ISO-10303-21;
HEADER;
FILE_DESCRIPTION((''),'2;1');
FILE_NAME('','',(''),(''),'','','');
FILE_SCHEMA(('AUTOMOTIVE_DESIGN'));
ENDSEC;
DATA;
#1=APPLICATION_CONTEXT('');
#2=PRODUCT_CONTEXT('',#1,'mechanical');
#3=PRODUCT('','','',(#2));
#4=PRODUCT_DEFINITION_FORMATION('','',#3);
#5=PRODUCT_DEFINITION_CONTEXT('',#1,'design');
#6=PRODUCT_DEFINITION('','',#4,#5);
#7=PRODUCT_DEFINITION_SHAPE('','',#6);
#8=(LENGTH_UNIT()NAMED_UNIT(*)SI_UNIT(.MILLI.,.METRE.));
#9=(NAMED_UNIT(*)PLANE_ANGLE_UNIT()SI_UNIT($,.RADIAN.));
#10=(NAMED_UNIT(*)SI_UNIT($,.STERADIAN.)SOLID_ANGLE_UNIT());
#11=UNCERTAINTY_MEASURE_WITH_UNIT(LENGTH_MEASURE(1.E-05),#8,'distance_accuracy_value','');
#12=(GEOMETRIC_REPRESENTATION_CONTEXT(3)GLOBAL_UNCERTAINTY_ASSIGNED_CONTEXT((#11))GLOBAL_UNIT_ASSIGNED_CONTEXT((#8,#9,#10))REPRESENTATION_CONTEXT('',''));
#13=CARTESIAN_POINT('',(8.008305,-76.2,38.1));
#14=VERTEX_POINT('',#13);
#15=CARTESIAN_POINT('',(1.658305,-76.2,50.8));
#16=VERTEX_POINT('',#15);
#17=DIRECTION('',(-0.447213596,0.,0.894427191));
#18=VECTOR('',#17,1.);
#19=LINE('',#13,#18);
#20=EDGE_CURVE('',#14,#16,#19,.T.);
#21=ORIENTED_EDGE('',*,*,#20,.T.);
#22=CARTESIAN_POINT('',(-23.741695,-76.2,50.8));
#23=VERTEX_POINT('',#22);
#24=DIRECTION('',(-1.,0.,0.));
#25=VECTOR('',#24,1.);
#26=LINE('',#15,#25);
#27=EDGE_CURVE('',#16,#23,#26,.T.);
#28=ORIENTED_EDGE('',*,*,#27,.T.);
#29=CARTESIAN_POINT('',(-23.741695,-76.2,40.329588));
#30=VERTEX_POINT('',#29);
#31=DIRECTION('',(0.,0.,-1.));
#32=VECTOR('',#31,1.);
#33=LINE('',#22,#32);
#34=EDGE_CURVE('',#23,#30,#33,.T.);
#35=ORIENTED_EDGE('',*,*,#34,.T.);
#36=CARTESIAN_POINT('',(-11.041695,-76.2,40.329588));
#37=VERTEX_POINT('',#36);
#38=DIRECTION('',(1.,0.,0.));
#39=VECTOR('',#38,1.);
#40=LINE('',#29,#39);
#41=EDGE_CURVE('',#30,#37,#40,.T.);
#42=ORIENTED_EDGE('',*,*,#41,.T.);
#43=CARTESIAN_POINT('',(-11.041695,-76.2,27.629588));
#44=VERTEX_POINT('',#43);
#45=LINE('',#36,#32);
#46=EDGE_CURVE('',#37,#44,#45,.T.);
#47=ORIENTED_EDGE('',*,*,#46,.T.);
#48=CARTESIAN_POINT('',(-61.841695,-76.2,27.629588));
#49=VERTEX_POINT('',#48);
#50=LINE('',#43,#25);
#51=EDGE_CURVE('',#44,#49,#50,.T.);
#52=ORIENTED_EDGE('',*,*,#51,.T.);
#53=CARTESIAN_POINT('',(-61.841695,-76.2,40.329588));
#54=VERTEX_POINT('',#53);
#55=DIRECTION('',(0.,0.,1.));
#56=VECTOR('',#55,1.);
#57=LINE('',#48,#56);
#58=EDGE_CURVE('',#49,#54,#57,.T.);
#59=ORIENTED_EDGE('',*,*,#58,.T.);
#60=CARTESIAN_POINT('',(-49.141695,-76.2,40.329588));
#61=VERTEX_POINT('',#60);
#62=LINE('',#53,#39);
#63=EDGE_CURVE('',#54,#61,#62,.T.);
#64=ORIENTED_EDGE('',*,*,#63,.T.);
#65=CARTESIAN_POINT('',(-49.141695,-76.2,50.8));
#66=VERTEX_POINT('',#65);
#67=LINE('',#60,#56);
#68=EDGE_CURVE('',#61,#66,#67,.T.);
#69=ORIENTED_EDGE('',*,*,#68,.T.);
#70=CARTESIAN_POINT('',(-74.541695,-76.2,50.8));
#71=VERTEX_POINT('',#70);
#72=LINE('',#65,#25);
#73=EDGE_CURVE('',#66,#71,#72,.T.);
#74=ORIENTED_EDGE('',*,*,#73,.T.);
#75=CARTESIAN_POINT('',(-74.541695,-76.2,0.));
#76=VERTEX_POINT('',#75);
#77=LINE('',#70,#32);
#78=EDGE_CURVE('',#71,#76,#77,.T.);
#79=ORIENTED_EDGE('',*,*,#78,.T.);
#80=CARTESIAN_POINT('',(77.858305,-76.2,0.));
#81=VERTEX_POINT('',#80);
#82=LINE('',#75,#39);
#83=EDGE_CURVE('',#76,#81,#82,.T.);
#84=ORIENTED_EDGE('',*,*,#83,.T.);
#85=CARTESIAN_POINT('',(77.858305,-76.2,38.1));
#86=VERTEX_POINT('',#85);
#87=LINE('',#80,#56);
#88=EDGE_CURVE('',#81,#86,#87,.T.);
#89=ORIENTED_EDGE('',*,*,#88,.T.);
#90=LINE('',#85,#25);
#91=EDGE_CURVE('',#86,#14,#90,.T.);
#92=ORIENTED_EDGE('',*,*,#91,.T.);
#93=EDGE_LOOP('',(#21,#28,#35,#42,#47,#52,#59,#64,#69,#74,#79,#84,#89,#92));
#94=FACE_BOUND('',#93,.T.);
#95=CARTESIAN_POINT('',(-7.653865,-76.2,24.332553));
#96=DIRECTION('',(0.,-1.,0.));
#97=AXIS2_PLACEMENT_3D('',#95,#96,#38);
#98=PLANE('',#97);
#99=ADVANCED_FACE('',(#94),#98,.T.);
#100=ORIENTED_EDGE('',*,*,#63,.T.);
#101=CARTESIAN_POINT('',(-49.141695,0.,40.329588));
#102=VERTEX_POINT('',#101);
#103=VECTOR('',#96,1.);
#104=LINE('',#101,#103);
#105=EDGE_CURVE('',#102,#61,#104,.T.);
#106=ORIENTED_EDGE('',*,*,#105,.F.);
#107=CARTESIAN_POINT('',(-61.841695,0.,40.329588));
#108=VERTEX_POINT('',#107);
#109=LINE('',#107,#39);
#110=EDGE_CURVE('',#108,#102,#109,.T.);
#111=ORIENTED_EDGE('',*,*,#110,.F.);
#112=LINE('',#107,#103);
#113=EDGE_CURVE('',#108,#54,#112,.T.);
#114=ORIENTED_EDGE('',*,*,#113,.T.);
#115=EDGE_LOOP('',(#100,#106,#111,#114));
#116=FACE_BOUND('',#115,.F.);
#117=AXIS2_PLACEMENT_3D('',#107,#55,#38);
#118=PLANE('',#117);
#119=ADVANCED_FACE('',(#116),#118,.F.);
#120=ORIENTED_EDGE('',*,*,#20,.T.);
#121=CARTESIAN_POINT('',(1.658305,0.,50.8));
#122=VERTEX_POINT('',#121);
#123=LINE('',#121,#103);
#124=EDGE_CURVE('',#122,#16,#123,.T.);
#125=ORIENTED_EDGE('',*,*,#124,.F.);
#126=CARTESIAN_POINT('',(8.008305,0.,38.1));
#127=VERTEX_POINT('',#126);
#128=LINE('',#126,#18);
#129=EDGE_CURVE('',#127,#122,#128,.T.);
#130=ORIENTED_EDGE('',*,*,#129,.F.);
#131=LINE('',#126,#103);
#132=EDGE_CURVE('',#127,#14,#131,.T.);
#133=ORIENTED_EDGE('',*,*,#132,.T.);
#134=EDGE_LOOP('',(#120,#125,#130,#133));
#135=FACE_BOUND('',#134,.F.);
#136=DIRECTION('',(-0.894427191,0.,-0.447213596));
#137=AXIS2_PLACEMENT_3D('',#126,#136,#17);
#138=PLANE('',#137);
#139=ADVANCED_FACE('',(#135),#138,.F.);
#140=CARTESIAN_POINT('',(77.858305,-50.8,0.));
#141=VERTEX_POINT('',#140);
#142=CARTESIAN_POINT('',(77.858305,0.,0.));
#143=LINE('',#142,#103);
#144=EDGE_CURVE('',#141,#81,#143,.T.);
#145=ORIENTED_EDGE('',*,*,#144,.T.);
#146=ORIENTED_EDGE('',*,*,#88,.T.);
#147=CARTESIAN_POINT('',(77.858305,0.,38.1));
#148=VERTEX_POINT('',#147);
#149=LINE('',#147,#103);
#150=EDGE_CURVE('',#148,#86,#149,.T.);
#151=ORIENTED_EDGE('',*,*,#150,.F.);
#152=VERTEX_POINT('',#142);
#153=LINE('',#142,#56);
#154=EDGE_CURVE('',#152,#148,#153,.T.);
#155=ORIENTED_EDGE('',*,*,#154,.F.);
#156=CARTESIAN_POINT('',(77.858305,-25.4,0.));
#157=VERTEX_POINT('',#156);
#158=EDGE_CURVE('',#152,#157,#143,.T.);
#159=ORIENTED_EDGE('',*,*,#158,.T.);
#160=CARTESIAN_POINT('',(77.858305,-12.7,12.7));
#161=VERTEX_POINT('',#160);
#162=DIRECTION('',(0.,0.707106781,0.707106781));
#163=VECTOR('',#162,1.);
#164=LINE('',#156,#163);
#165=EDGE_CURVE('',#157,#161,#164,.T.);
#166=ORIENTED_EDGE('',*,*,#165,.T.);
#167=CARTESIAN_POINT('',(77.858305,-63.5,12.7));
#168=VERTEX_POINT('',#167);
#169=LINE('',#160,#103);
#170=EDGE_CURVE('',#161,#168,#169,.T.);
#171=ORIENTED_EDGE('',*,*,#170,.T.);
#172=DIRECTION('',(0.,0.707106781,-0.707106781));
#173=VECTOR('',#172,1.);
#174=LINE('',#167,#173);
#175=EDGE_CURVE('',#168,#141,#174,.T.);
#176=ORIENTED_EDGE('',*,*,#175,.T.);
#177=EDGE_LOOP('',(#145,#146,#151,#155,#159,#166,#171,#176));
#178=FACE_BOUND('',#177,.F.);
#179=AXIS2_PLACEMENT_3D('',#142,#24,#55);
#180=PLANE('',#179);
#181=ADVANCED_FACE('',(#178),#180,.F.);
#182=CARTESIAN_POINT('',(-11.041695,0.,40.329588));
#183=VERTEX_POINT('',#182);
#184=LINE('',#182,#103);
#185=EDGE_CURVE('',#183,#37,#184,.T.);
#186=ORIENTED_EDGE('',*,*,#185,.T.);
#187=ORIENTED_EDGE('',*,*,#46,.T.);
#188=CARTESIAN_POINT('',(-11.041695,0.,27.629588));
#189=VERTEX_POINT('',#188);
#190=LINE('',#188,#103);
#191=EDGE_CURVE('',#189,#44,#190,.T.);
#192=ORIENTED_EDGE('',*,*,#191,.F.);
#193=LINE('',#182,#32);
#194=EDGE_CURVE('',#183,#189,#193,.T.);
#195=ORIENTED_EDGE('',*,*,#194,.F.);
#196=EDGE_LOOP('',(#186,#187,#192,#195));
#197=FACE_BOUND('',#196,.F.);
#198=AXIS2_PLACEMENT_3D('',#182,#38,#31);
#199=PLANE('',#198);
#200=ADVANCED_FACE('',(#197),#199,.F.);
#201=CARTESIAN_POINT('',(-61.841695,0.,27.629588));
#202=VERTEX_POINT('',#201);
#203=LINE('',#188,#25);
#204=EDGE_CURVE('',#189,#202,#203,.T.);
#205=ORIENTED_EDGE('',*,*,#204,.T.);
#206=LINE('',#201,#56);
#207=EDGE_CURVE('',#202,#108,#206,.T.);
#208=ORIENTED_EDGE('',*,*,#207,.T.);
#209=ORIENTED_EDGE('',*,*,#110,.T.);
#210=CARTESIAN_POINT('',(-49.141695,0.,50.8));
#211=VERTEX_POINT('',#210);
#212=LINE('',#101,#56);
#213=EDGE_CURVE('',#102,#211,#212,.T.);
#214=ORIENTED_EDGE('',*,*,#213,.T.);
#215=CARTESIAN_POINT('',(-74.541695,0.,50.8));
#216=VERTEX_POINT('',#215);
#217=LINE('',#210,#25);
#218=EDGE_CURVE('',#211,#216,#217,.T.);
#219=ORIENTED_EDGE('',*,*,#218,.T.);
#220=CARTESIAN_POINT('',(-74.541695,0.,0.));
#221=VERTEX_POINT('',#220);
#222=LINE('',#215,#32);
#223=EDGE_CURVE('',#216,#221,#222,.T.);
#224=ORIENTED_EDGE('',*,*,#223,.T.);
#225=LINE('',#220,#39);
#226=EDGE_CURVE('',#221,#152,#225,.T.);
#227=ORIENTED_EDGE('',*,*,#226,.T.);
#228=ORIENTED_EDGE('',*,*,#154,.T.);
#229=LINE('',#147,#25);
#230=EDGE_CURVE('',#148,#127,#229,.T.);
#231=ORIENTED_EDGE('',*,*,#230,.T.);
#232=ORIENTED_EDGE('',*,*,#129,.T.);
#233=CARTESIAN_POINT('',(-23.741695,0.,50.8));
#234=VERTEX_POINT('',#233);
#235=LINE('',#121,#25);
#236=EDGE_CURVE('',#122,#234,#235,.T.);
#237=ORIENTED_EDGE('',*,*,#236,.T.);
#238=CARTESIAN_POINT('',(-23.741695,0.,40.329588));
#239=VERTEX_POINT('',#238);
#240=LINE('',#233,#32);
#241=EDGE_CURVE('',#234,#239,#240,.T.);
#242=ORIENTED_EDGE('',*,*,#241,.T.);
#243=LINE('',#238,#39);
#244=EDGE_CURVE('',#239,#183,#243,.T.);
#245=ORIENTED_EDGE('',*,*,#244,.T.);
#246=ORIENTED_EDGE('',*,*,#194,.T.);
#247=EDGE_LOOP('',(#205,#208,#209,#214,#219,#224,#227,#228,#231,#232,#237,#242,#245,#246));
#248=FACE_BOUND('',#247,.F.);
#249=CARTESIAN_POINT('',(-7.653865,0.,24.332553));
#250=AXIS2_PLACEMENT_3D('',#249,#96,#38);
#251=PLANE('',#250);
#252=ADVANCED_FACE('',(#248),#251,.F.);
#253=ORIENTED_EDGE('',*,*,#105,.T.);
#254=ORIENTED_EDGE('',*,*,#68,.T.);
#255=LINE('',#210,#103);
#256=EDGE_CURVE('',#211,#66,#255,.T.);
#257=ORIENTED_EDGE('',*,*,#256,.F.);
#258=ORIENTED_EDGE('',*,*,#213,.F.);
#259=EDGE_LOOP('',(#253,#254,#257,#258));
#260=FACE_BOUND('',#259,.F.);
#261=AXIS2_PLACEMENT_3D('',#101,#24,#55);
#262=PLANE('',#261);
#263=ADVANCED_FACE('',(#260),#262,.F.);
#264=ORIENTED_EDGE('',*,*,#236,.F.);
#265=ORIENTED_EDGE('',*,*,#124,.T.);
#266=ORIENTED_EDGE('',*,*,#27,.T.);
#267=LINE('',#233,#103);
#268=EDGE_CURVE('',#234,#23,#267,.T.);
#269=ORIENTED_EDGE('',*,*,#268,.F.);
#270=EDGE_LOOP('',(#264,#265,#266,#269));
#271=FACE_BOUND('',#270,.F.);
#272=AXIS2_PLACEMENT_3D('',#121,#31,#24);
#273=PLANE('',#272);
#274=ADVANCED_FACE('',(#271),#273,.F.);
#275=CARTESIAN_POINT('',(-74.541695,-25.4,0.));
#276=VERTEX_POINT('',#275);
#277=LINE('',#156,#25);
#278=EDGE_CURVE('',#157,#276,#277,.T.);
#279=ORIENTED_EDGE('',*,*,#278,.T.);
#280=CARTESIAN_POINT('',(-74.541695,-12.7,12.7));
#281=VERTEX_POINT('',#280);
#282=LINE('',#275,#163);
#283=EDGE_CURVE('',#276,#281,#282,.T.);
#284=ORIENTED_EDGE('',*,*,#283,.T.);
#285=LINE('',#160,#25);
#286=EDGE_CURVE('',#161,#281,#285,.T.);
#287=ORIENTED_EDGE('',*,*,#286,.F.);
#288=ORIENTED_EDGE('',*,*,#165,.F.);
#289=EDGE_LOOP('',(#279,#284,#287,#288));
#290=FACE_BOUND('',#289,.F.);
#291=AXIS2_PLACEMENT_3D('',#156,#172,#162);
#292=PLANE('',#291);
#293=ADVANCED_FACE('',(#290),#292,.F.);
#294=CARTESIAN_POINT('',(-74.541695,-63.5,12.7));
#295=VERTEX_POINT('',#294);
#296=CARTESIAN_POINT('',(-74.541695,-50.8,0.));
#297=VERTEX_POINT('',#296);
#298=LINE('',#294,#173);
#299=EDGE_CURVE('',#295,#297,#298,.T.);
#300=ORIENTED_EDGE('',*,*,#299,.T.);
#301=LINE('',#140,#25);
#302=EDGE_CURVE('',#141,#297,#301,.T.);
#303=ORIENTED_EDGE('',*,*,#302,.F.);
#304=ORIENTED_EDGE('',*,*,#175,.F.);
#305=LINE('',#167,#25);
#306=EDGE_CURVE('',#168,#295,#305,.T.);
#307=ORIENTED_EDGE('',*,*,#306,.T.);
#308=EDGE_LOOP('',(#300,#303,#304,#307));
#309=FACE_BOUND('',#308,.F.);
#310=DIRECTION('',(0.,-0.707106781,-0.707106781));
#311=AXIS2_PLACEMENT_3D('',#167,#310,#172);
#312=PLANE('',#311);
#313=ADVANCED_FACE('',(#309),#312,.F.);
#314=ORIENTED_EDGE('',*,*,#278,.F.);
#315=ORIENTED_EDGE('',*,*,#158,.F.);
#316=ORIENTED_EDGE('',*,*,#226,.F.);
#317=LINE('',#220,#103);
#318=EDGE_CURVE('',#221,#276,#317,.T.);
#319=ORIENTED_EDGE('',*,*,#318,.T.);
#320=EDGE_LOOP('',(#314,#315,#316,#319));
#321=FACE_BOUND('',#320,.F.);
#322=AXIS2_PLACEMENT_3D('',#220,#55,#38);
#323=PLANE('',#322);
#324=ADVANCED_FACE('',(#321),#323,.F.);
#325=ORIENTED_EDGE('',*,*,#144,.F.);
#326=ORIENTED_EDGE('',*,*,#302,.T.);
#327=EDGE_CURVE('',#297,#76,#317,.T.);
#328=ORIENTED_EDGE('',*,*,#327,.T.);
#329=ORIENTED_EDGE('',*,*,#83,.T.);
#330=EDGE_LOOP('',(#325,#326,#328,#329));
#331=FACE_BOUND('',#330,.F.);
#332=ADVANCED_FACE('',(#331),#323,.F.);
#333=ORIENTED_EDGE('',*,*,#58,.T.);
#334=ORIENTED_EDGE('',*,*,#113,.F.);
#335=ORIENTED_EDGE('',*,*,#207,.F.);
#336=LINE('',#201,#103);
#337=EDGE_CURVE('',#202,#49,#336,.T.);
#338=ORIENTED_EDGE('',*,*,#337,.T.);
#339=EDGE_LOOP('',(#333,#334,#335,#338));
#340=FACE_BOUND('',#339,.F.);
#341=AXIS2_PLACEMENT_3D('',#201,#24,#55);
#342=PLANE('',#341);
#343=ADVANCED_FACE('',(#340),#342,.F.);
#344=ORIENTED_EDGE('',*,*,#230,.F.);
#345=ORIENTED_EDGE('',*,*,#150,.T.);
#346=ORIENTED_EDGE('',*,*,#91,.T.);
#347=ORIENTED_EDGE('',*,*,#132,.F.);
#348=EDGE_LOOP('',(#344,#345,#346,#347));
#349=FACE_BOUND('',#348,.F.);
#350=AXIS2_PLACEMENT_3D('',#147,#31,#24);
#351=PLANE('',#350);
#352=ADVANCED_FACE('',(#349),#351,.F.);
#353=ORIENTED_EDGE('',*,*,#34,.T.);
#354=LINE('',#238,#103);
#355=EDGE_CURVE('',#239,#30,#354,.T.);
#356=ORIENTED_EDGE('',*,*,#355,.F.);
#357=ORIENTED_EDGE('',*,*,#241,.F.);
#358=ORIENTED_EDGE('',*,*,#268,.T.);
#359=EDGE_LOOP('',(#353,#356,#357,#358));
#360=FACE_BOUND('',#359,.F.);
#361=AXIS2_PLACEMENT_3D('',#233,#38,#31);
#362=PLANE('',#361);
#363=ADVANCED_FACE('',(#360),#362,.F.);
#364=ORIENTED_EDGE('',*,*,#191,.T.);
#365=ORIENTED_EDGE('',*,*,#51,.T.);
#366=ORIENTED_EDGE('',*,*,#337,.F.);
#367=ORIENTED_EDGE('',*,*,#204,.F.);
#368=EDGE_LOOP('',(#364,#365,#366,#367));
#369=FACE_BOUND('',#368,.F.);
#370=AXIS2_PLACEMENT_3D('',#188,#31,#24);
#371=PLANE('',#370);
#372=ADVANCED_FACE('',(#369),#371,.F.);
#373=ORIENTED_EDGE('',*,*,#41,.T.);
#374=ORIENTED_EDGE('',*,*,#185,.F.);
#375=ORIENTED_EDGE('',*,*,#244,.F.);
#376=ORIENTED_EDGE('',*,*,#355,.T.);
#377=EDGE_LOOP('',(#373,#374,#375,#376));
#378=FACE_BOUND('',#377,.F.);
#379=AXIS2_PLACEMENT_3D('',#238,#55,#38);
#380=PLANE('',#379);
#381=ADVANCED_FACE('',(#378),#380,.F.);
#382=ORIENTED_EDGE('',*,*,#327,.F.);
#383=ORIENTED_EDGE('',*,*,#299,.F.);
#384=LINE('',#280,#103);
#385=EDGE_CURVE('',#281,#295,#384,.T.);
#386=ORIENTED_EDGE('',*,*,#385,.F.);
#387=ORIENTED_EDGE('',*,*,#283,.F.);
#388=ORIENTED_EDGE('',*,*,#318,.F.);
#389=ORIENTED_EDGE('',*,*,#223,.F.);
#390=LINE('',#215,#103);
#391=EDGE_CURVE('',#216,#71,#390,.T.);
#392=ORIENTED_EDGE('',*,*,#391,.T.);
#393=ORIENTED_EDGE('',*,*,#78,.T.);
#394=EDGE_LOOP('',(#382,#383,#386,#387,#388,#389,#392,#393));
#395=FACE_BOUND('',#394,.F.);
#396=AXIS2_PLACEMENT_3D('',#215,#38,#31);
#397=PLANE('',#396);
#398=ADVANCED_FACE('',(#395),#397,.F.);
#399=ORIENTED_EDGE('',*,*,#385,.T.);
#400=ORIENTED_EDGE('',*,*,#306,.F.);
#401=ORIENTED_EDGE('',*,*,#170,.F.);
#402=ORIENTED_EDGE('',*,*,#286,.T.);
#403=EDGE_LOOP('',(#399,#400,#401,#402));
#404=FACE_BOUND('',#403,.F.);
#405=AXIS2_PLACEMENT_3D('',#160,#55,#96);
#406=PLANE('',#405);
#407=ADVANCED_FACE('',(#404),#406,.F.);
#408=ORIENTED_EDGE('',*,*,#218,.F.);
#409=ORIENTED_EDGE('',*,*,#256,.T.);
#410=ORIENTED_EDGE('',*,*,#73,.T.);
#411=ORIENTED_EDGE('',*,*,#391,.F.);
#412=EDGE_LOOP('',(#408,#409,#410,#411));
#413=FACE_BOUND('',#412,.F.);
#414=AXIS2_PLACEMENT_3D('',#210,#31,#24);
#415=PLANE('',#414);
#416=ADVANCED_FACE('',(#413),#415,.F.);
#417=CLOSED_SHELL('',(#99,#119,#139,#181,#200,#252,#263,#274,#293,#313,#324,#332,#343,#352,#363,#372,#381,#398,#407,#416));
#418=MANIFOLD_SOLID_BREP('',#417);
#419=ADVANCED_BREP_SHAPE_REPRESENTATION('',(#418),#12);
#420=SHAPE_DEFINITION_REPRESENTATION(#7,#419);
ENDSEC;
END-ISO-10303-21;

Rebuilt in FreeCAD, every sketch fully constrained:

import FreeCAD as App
import Part
import Sketcher
from FreeCAD import Vector
Q = App.Units.Quantity

doc = App.newDocument("Part")
params = doc.addObject("Spreadsheet::Sheet", "Params")
for row, (alias, value) in enumerate([
    ("sketch1_width", "6 in"),
    ("sketch1_width2", "1 in"),
    ("sketch1_width3", "2 in"),
    ("sketch1_width4", "0.5 in"),
    ("sketch1_height", "1.5 in"),
    ("pad1_length", "3 in"),
    ("sketch2_width", "1 in"),
    ("sketch2_width2", "2 in"),
    ("pocket1_length", "6 in"),
], start=1):
    params.set(f"A{row}", alias)
    params.set(f"B{row}", "=" + value)
    params.setAlias(f"B{row}", alias)

body = doc.addObject("PartDesign::Body", "Body")

sketch1 = doc.addObject("Sketcher::SketchObject", "Sketch")
body.addObject(sketch1)
sketch1.AttachmentSupport = (doc.XZ_Plane, [""])
sketch1.MapMode = "FlatFace"
sketch1.addGeometry(Part.LineSegment(Vector(-75, 51, 0), Vector(-75, 0, 0)), False)
sketch1.addGeometry(Part.LineSegment(Vector(-75, 0, 0), Vector(78, 0, 0)), False)
sketch1.addGeometry(Part.LineSegment(Vector(78, 0, 0), Vector(78, 38, 0)), False)
sketch1.addGeometry(Part.LineSegment(Vector(78, 38, 0), Vector(8, 38, 0)), False)
sketch1.addGeometry(Part.LineSegment(Vector(8, 38, 0), Vector(2, 51, 0)), False)
sketch1.addGeometry(Part.LineSegment(Vector(2, 51, 0), Vector(-24, 51, 0)), False)
sketch1.addGeometry(Part.LineSegment(Vector(-24, 51, 0), Vector(-24, 40, 0)), False)
sketch1.addGeometry(Part.LineSegment(Vector(-24, 40, 0), Vector(-11, 40, 0)), False)
sketch1.addGeometry(Part.LineSegment(Vector(-11, 40, 0), Vector(-11, 28, 0)), False)
sketch1.addGeometry(Part.LineSegment(Vector(-11, 28, 0), Vector(-62, 28, 0)), False)
sketch1.addGeometry(Part.LineSegment(Vector(-62, 28, 0), Vector(-62, 40, 0)), False)
sketch1.addGeometry(Part.LineSegment(Vector(-62, 40, 0), Vector(-49, 40, 0)), False)
sketch1.addGeometry(Part.LineSegment(Vector(-49, 40, 0), Vector(-49, 51, 0)), False)
sketch1.addGeometry(Part.LineSegment(Vector(-49, 51, 0), Vector(-75, 51, 0)), False)
sketch1.addConstraint(Sketcher.Constraint("Coincident", 0, 2, 1, 1))
sketch1.addConstraint(Sketcher.Constraint("Coincident", 1, 2, 2, 1))
sketch1.addConstraint(Sketcher.Constraint("Coincident", 2, 2, 3, 1))
sketch1.addConstraint(Sketcher.Constraint("Coincident", 3, 2, 4, 1))
sketch1.addConstraint(Sketcher.Constraint("Coincident", 4, 2, 5, 1))
sketch1.addConstraint(Sketcher.Constraint("Coincident", 5, 2, 6, 1))
sketch1.addConstraint(Sketcher.Constraint("Coincident", 6, 2, 7, 1))
sketch1.addConstraint(Sketcher.Constraint("Coincident", 7, 2, 8, 1))
sketch1.addConstraint(Sketcher.Constraint("Coincident", 8, 2, 9, 1))
sketch1.addConstraint(Sketcher.Constraint("Coincident", 9, 2, 10, 1))
sketch1.addConstraint(Sketcher.Constraint("Coincident", 10, 2, 11, 1))
sketch1.addConstraint(Sketcher.Constraint("Coincident", 11, 2, 12, 1))
sketch1.addConstraint(Sketcher.Constraint("Coincident", 12, 2, 13, 1))
sketch1.addConstraint(Sketcher.Constraint("Coincident", 13, 2, 0, 1))
sketch1.addConstraint(Sketcher.Constraint("Vertical", 0))
sketch1.addConstraint(Sketcher.Constraint("Horizontal", 1))
sketch1.addConstraint(Sketcher.Constraint("Vertical", 2))
sketch1.addConstraint(Sketcher.Constraint("Horizontal", 3))
sketch1.addConstraint(Sketcher.Constraint("Horizontal", 5))
sketch1.addConstraint(Sketcher.Constraint("Vertical", 6))
sketch1.addConstraint(Sketcher.Constraint("Horizontal", 7))
sketch1.addConstraint(Sketcher.Constraint("Vertical", 8))
sketch1.addConstraint(Sketcher.Constraint("Horizontal", 9))
sketch1.addConstraint(Sketcher.Constraint("Vertical", 10))
sketch1.addConstraint(Sketcher.Constraint("Horizontal", 11))
sketch1.addConstraint(Sketcher.Constraint("Vertical", 12))
sketch1.addConstraint(Sketcher.Constraint("Horizontal", 13))
sketch1.addConstraint(Sketcher.Constraint("PointOnObject", 0, 2, -1))
sketch1.addConstraint(Sketcher.Constraint("Horizontal", 7, 2, 10, 2))
sketch1.addConstraint(Sketcher.Constraint("Horizontal", 5, 2, 12, 2))
sketch1.addConstraint(Sketcher.Constraint("Equal", 7, 11))
sketch1.addConstraint(Sketcher.Constraint("Equal", 5, 13))
sketch1.addConstraint(Sketcher.Constraint("Equal", 9, 0))
sketch1.addConstraint(Sketcher.Constraint("Equal", 11, 8))
sketch1.addConstraint(Sketcher.Constraint("DistanceX", 1, 1, 1, 2, Q("6 in")))
sketch1.addConstraint(Sketcher.Constraint("DistanceX", 5, 2, 5, 1, Q("1 in")))
sketch1.addConstraint(Sketcher.Constraint("DistanceX", 9, 2, 9, 1, Q("2 in")))
sketch1.addConstraint(Sketcher.Constraint("DistanceX", 7, 1, 7, 2, Q("0.5 in")))
sketch1.addConstraint(Sketcher.Constraint("DistanceY", 2, 1, 2, 2, Q("1.5 in")))
sketch1.addConstraint(Sketcher.Constraint("DistanceX", 3, 2, 3, 1, Q("2.75 in")))
sketch1.addConstraint(Sketcher.Constraint("DistanceY", 6, 2, 6, 1, Q("10.470412 mm")))
sketch1.addConstraint(Sketcher.Constraint("DistanceX", 0, 2, -1, 1, Q("74.541695 mm")))
sketch1.setExpression("Constraints[34]", "Params.sketch1_width")
sketch1.setExpression("Constraints[35]", "Params.sketch1_width2")
sketch1.setExpression("Constraints[36]", "Params.sketch1_width3")
sketch1.setExpression("Constraints[37]", "Params.sketch1_width4")
sketch1.setExpression("Constraints[38]", "Params.sketch1_height")
pad1 = doc.addObject("PartDesign::Pad", "Pad")
body.addObject(pad1)
pad1.Profile = sketch1
pad1.setExpression("Length", "Params.pad1_length")

sketch2 = doc.addObject("Sketcher::SketchObject", "Sketch001")
body.addObject(sketch2)
sketch2.AttachmentSupport = (doc.YZ_Plane, [""])
sketch2.MapMode = "FlatFace"
sketch2.AttachmentOffset = App.Placement(Vector(0, 0, 77.858305), App.Rotation())
sketch2.addGeometry(Part.LineSegment(Vector(-51, 0, 0), Vector(-25, 0, 0)), False)
sketch2.addGeometry(Part.LineSegment(Vector(-25, 0, 0), Vector(-13, 13, 0)), False)
sketch2.addGeometry(Part.LineSegment(Vector(-13, 13, 0), Vector(-64, 13, 0)), False)
sketch2.addGeometry(Part.LineSegment(Vector(-64, 13, 0), Vector(-51, 0, 0)), False)
sketch2.addConstraint(Sketcher.Constraint("Coincident", 0, 2, 1, 1))
sketch2.addConstraint(Sketcher.Constraint("Coincident", 1, 2, 2, 1))
sketch2.addConstraint(Sketcher.Constraint("Coincident", 2, 2, 3, 1))
sketch2.addConstraint(Sketcher.Constraint("Coincident", 3, 2, 0, 1))
sketch2.addConstraint(Sketcher.Constraint("Horizontal", 0))
sketch2.addConstraint(Sketcher.Constraint("Horizontal", 2))
sketch2.addConstraint(Sketcher.Constraint("PointOnObject", 0, 2, -1))
sketch2.addConstraint(Sketcher.Constraint("Perpendicular", 1, 3))
sketch2.addConstraint(Sketcher.Constraint("Equal", 1, 3))
sketch2.addConstraint(Sketcher.Constraint("DistanceX", 0, 1, 0, 2, Q("1 in")))
sketch2.addConstraint(Sketcher.Constraint("DistanceX", 2, 2, 2, 1, Q("2 in")))
sketch2.addConstraint(Sketcher.Constraint("DistanceX", 0, 2, -1, 1, Q("1 in")))
sketch2.setExpression("Constraints[9]", "Params.sketch2_width")
sketch2.setExpression("Constraints[10]", "Params.sketch2_width2")
pocket1 = doc.addObject("PartDesign::Pocket", "Pocket")
body.addObject(pocket1)
pocket1.Profile = sketch2
pocket1.setExpression("Length", "Params.pocket1_length")

doc.recompute()
